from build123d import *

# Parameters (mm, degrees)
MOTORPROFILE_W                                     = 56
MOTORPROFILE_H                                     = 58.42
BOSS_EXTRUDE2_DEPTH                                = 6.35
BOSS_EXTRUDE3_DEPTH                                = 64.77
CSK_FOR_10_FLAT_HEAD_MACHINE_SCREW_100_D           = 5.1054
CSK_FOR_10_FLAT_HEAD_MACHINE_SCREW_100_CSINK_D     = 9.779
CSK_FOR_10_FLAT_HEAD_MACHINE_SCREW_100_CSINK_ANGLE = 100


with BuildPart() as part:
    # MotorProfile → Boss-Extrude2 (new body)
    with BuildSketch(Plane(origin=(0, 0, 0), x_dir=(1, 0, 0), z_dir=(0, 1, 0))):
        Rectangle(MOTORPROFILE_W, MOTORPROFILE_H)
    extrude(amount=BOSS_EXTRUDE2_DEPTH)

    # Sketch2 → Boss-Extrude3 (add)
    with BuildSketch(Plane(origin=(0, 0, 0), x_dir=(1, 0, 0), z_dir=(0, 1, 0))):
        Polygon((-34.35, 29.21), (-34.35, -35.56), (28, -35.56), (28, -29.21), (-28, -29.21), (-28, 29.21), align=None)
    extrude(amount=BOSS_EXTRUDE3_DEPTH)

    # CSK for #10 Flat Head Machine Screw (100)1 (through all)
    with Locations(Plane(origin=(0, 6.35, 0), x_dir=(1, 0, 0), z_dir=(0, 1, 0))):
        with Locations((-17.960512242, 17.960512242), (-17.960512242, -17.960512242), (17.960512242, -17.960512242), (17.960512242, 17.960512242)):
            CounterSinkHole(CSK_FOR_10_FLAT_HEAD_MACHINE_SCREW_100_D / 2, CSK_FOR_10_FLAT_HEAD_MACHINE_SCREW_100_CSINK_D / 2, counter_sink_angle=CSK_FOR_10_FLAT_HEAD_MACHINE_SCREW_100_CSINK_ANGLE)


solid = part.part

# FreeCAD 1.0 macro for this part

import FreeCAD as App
import Part
import Sketcher
Q = App.Units.Quantity


def add_polygon(sketch, points):
    """Adds a closed chain of lines whose ends are joined by coincident constraints."""
    first, n = sketch.GeometryCount, len(points)
    for a, b in zip(points, points[1:] + points[:1]):
        sketch.addGeometry(Part.LineSegment(App.Vector(*a, 0), App.Vector(*b, 0)), False)
    for i in range(n):
        sketch.addConstraint(Sketcher.Constraint("Coincident", first + i, 2, first + (i + 1) % n, 1))

doc = App.newDocument("Part")
body = doc.addObject("PartDesign::Body", "Body")

sketch1 = body.newObject("Sketcher::SketchObject", "Sketch")
sketch1.AttachmentSupport = (doc.getObject("XZ_Plane"), [""])
sketch1.MapMode = "FlatFace"
add_polygon(sketch1, [(-28, -29), (-28, 29), (28, 29), (28, -29)])
sketch1.addConstraint(Sketcher.Constraint("Vertical", 0))
sketch1.addConstraint(Sketcher.Constraint("Horizontal", 1))
sketch1.addConstraint(Sketcher.Constraint("Vertical", 2))
sketch1.addConstraint(Sketcher.Constraint("Horizontal", 3))
sketch1.addConstraint(Sketcher.Constraint("Symmetric", 0, 2, 2, 2, -1, 1))
sketch1.addConstraint(Sketcher.Constraint("DistanceY", 0, 1, 0, 2, Q("2.3 in")))
sketch1.addConstraint(Sketcher.Constraint("DistanceX", 1, 1, 1, 2, 56.0))
pad1 = body.newObject("PartDesign::Pad", "Pad")
pad1.Profile = sketch1
pad1.Length = Q("0.25 in")
pad1.Reversed = True

sketch2 = body.newObject("Sketcher::SketchObject", "Sketch001")
sketch2.AttachmentSupport = (doc.getObject("XZ_Plane"), [""])
sketch2.MapMode = "FlatFace"
add_polygon(sketch2, [(-34, -29), (-34, 36), (28, 36), (28, 29), (-28, 29), (-28, -29)])
sketch2.addConstraint(Sketcher.Constraint("Vertical", 0))
sketch2.addConstraint(Sketcher.Constraint("Horizontal", 1))
sketch2.addConstraint(Sketcher.Constraint("Vertical", 2))
sketch2.addConstraint(Sketcher.Constraint("Horizontal", 3))
sketch2.addConstraint(Sketcher.Constraint("Vertical", 4))
sketch2.addConstraint(Sketcher.Constraint("Horizontal", 5))
sketch2.addConstraint(Sketcher.Constraint("Symmetric", 2, 2, 4, 2, -1, 1))
sketch2.addConstraint(Sketcher.Constraint("Equal", 5, 2))
sketch2.addConstraint(Sketcher.Constraint("DistanceY", 4, 2, 4, 1, Q("2.3 in")))
sketch2.addConstraint(Sketcher.Constraint("DistanceX", 5, 2, 5, 1, Q("0.25 in")))
sketch2.addConstraint(Sketcher.Constraint("DistanceX", 1, 1, 1, 2, 62.35))
pad2 = body.newObject("PartDesign::Pad", "Pad001")
pad2.Profile = sketch2
pad2.Length = Q("2.55 in")
pad2.Reversed = True

sketch3 = body.newObject("Sketcher::SketchObject", "Sketch002")
sketch3.AttachmentSupport = (doc.getObject("XZ_Plane"), [""])
sketch3.MapMode = "FlatFace"
sketch3.AttachmentOffset = App.Placement(App.Vector(0, 0, -0.25 * 25.4), App.Rotation())
sketch3.addGeometry(Part.Circle(App.Vector(-18, -18, 0), App.Vector(0, 0, 1), 2.6), False)
sketch3.addGeometry(Part.Circle(App.Vector(-18, 18, 0), App.Vector(0, 0, 1), 2.6), False)
sketch3.addGeometry(Part.Circle(App.Vector(18, 18, 0), App.Vector(0, 0, 1), 2.6), False)
sketch3.addGeometry(Part.Circle(App.Vector(18, -18, 0), App.Vector(0, 0, 1), 2.6), False)
sketch3.addConstraint(Sketcher.Constraint("Equal", 0, 1))
sketch3.addConstraint(Sketcher.Constraint("Equal", 1, 2))
sketch3.addConstraint(Sketcher.Constraint("Equal", 2, 3))
sketch3.addConstraint(Sketcher.Constraint("Symmetric", 0, 3, 2, 3, -1, 1))
sketch3.addConstraint(Sketcher.Constraint("Symmetric", 1, 3, 3, 3, -1, 1))
sketch3.addConstraint(Sketcher.Constraint("Symmetric", 1, 3, 2, 3, -2))
sketch3.addConstraint(Sketcher.Constraint("Diameter", 0, Q("0.201 in")))
sketch3.addConstraint(Sketcher.Constraint("DistanceX", 0, 3, -1, 1, 17.960512))
sketch3.addConstraint(Sketcher.Constraint("DistanceY", 0, 3, -1, 1, 17.960512))
doc.recompute()
hole = body.newObject("PartDesign::Hole", "Hole")
hole.Profile = sketch3
hole.ThreadType = "None"
hole.Diameter = Q("0.201 in")
hole.DepthType = "ThroughAll"
hole.HoleCutType = "Countersink"
hole.HoleCutDiameter = Q("0.385 in")
hole.HoleCutCountersinkAngle = 100
hole.Reversed = True

doc.recompute()
